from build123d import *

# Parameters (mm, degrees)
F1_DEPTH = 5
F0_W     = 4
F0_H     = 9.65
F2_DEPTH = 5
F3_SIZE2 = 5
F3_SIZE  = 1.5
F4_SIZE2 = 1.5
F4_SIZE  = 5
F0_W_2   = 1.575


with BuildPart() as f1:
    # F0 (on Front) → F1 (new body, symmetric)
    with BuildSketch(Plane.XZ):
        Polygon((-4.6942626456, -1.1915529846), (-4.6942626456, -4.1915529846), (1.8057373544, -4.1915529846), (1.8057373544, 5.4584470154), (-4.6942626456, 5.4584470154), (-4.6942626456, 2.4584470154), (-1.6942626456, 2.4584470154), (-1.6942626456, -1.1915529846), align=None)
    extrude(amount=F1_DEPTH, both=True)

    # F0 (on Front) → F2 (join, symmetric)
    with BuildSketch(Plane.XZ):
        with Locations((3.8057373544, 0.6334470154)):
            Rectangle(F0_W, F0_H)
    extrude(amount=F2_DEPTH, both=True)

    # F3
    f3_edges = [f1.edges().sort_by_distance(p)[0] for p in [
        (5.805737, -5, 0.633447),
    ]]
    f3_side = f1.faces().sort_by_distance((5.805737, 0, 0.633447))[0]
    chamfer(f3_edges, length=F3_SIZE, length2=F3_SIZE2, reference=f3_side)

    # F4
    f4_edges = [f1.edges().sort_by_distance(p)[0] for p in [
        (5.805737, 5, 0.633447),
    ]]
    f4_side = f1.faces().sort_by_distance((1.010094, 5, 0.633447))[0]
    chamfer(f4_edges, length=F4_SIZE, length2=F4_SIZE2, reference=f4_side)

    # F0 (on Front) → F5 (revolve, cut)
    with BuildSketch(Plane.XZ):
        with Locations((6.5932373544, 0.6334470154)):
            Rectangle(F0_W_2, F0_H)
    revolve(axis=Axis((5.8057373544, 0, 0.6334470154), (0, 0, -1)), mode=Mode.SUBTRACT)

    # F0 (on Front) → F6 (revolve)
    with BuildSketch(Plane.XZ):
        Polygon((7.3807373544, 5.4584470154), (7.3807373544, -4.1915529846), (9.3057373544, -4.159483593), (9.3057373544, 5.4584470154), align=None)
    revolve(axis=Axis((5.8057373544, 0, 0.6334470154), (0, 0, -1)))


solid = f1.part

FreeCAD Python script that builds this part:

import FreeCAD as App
import Part
import Sketcher
Q = App.Units.Quantity


def edges_at(feature, points):
    """Names of the edges that pass closest to the given points."""
    edges = feature.Shape.Edges
    near = lambda p: min(range(len(edges)), key=lambda i: edges[i].distToShape(Part.Vertex(*p))[0])
    return sorted({f"Edge{near(p) + 1}" for p in points})


def add_polygon(sketch, points):
    """Adds a closed chain of lines whose ends are joined by coincident constraints."""
    first, n = sketch.GeometryCount, len(points)
    for a, b in zip(points, points[1:] + points[:1]):
        sketch.addGeometry(Part.LineSegment(App.Vector(*a, 0), App.Vector(*b, 0)), False)
    for i in range(n):
        sketch.addConstraint(Sketcher.Constraint("Coincident", first + i, 2, first + (i + 1) % n, 1))

doc = App.newDocument("Part")
body = doc.addObject("PartDesign::Body", "Body")

# Sketch on XZ plane
sketch1 = body.newObject("Sketcher::SketchObject", "Sketch")
sketch1.AttachmentSupport = (doc.getObject("XZ_Plane"), [""])
sketch1.MapMode = "FlatFace"
add_polygon(sketch1, [(-4.694263, -1.191553), (-4.694263, -4.191553), (1.805737, -4.191553), (1.805737, 5.458447), (-4.694263, 5.458447), (-4.694263, 2.458447), (-1.694263, 2.458447), (-1.694263, -1.191553)])  # lines 0-7
sketch1.addConstraint(Sketcher.Constraint("Vertical", 0))
sketch1.addConstraint(Sketcher.Constraint("Horizontal", 1))
sketch1.addConstraint(Sketcher.Constraint("Vertical", 2))
sketch1.addConstraint(Sketcher.Constraint("Horizontal", 3))
sketch1.addConstraint(Sketcher.Constraint("Vertical", 4))
sketch1.addConstraint(Sketcher.Constraint("Horizontal", 5))
sketch1.addConstraint(Sketcher.Constraint("Vertical", 6))
sketch1.addConstraint(Sketcher.Constraint("Horizontal", 7))
sketch1.addConstraint(Sketcher.Constraint("Vertical", 0, 2, 3, 2))
sketch1.addConstraint(Sketcher.Constraint("Equal", 7, 0))
sketch1.addConstraint(Sketcher.Constraint("Equal", 0, 4))
sketch1.addConstraint(Sketcher.Constraint("DistanceX", 5, 1, 5, 2, Q("3 mm")))
sketch1.addConstraint(Sketcher.Constraint("DistanceX", 1, 1, 1, 2, Q("6.5 mm")))
sketch1.addConstraint(Sketcher.Constraint("DistanceY", 2, 1, 2, 2, Q("9.65 mm")))
sketch1.addConstraint(Sketcher.Constraint("DistanceX", 0, 2, -1, 1, Q("4.694263 mm")))
sketch1.addConstraint(Sketcher.Constraint("DistanceY", 0, 2, -1, 1, Q("4.191553 mm")))
pad1 = body.newObject("PartDesign::Pad", "Pad")
pad1.Profile = sketch1
pad1.Length = 10
pad1.Midplane = True

# Sketch on XZ plane
sketch2 = body.newObject("Sketcher::SketchObject", "Sketch001")
sketch2.AttachmentSupport = (doc.getObject("XZ_Plane"), [""])
sketch2.MapMode = "FlatFace"
add_polygon(sketch2, [(1.805737, 5.458447), (1.805737, -4.191553), (5.805737, -4.191553), (5.805737, 5.458447)])  # lines 0-3
sketch2.addConstraint(Sketcher.Constraint("Vertical", 0))
sketch2.addConstraint(Sketcher.Constraint("Horizontal", 1))
sketch2.addConstraint(Sketcher.Constraint("Vertical", 2))
sketch2.addConstraint(Sketcher.Constraint("Horizontal", 3))
sketch2.addConstraint(Sketcher.Constraint("DistanceX", 1, 1, 1, 2, Q("4 mm")))
sketch2.addConstraint(Sketcher.Constraint("DistanceY", 0, 2, 0, 1, Q("9.65 mm")))
sketch2.addConstraint(Sketcher.Constraint("DistanceX", -1, 1, 0, 2, Q("1.805737 mm")))
sketch2.addConstraint(Sketcher.Constraint("DistanceY", 0, 2, -1, 1, Q("4.191553 mm")))
pad2 = body.newObject("PartDesign::Pad", "Pad001")
pad2.Profile = sketch2
pad2.Length = 10
pad2.Midplane = True
doc.recompute()

chamfer = body.newObject("PartDesign::Chamfer", "Chamfer")
chamfer.Base = (pad2, edges_at(pad2, [(5.806, -5, 0.633)]))
chamfer.ChamferType = "Two distances"
chamfer.Size = 1.5
chamfer.Size2 = 5
doc.recompute()

chamfer2 = body.newObject("PartDesign::Chamfer", "Chamfer001")
chamfer2.Base = (chamfer, edges_at(chamfer, [(5.806, 5, 0.633)]))
chamfer2.ChamferType = "Two distances"
chamfer2.Size = 5
chamfer2.Size2 = 1.5
chamfer2.FlipDirection = True

# Sketch on XZ plane
sketch3 = body.newObject("Sketcher::SketchObject", "Sketch002")
sketch3.AttachmentSupport = (doc.getObject("XZ_Plane"), [""])
sketch3.MapMode = "FlatFace"
add_polygon(sketch3, [(5.805737, 5.458447), (5.805737, -4.191553), (7.380737, -4.191553), (7.380737, 5.458447)])  # lines 0-3
sketch3.addGeometry(Part.LineSegment(App.Vector(5.805737, 5.458447, 0), App.Vector(5.805737, -4.191553, 0)), True)  # axis
sketch3.addConstraint(Sketcher.Constraint("Vertical", 0))
sketch3.addConstraint(Sketcher.Constraint("Horizontal", 1))
sketch3.addConstraint(Sketcher.Constraint("Vertical", 2))
sketch3.addConstraint(Sketcher.Constraint("Horizontal", 3))
sketch3.addConstraint(Sketcher.Constraint("Vertical", 4))
sketch3.addConstraint(Sketcher.Constraint("Coincident", 4, 1, 3, 2))
sketch3.addConstraint(Sketcher.Constraint("Horizontal", 1, 2, 4, 2))
sketch3.addConstraint(Sketcher.Constraint("DistanceY", 0, 2, 0, 1, Q("9.65 mm")))
sketch3.addConstraint(Sketcher.Constraint("DistanceX", 1, 1, 1, 2, Q("1.575 mm")))
sketch3.addConstraint(Sketcher.Constraint("DistanceX", -1, 1, 0, 2, Q("5.805737 mm")))
sketch3.addConstraint(Sketcher.Constraint("DistanceY", 0, 2, -1, 1, Q("4.191553 mm")))
groove = body.newObject("PartDesign::Groove", "Groove")
groove.Profile = sketch3
groove.ReferenceAxis = (sketch3, ["Axis0"])
groove.Angle = 360

# Sketch on XZ plane
sketch4 = body.newObject("Sketcher::SketchObject", "Sketch003")
sketch4.AttachmentSupport = (doc.getObject("XZ_Plane"), [""])
sketch4.MapMode = "FlatFace"
add_polygon(sketch4, [(7.380737, 5.458447), (7.380737, -4.191553), (9.305737, -4.159484), (9.305737, 5.458447)])  # lines 0-3
sketch4.addGeometry(Part.LineSegment(App.Vector(5.805737, 5.458447, 0), App.Vector(5.805737, -4.191553, 0)), True)  # axis
sketch4.addConstraint(Sketcher.Constraint("Vertical", 0))
sketch4.addConstraint(Sketcher.Constraint("Vertical", 2))
sketch4.addConstraint(Sketcher.Constraint("Horizontal", 3))
sketch4.addConstraint(Sketcher.Constraint("Vertical", 4))
sketch4.addConstraint(Sketcher.Constraint("Horizontal", 3, 2, 4, 1))
sketch4.addConstraint(Sketcher.Constraint("Horizontal", 0, 2, 4, 2))
sketch4.addConstraint(Sketcher.Constraint("DistanceY", 0, 2, 0, 1, Q("9.65 mm")))
sketch4.addConstraint(Sketcher.Constraint("DistanceX", 4, 1, 2, 2, Q("3.5 mm")))
sketch4.addConstraint(Sketcher.Constraint("DistanceX", 3, 2, 3, 1, Q("1.925 mm")))
sketch4.addConstraint(Sketcher.Constraint("DistanceY", 2, 1, 2, 2, Q("9.617931 mm")))
sketch4.addConstraint(Sketcher.Constraint("DistanceX", -1, 1, 0, 2, Q("7.380737 mm")))
sketch4.addConstraint(Sketcher.Constraint("DistanceY", 0, 2, -1, 1, Q("4.191553 mm")))
revolution = body.newObject("PartDesign::Revolution", "Revolution")
revolution.Profile = sketch4
revolution.ReferenceAxis = (sketch4, ["Axis0"])
revolution.Angle = 360

doc.recompute()
